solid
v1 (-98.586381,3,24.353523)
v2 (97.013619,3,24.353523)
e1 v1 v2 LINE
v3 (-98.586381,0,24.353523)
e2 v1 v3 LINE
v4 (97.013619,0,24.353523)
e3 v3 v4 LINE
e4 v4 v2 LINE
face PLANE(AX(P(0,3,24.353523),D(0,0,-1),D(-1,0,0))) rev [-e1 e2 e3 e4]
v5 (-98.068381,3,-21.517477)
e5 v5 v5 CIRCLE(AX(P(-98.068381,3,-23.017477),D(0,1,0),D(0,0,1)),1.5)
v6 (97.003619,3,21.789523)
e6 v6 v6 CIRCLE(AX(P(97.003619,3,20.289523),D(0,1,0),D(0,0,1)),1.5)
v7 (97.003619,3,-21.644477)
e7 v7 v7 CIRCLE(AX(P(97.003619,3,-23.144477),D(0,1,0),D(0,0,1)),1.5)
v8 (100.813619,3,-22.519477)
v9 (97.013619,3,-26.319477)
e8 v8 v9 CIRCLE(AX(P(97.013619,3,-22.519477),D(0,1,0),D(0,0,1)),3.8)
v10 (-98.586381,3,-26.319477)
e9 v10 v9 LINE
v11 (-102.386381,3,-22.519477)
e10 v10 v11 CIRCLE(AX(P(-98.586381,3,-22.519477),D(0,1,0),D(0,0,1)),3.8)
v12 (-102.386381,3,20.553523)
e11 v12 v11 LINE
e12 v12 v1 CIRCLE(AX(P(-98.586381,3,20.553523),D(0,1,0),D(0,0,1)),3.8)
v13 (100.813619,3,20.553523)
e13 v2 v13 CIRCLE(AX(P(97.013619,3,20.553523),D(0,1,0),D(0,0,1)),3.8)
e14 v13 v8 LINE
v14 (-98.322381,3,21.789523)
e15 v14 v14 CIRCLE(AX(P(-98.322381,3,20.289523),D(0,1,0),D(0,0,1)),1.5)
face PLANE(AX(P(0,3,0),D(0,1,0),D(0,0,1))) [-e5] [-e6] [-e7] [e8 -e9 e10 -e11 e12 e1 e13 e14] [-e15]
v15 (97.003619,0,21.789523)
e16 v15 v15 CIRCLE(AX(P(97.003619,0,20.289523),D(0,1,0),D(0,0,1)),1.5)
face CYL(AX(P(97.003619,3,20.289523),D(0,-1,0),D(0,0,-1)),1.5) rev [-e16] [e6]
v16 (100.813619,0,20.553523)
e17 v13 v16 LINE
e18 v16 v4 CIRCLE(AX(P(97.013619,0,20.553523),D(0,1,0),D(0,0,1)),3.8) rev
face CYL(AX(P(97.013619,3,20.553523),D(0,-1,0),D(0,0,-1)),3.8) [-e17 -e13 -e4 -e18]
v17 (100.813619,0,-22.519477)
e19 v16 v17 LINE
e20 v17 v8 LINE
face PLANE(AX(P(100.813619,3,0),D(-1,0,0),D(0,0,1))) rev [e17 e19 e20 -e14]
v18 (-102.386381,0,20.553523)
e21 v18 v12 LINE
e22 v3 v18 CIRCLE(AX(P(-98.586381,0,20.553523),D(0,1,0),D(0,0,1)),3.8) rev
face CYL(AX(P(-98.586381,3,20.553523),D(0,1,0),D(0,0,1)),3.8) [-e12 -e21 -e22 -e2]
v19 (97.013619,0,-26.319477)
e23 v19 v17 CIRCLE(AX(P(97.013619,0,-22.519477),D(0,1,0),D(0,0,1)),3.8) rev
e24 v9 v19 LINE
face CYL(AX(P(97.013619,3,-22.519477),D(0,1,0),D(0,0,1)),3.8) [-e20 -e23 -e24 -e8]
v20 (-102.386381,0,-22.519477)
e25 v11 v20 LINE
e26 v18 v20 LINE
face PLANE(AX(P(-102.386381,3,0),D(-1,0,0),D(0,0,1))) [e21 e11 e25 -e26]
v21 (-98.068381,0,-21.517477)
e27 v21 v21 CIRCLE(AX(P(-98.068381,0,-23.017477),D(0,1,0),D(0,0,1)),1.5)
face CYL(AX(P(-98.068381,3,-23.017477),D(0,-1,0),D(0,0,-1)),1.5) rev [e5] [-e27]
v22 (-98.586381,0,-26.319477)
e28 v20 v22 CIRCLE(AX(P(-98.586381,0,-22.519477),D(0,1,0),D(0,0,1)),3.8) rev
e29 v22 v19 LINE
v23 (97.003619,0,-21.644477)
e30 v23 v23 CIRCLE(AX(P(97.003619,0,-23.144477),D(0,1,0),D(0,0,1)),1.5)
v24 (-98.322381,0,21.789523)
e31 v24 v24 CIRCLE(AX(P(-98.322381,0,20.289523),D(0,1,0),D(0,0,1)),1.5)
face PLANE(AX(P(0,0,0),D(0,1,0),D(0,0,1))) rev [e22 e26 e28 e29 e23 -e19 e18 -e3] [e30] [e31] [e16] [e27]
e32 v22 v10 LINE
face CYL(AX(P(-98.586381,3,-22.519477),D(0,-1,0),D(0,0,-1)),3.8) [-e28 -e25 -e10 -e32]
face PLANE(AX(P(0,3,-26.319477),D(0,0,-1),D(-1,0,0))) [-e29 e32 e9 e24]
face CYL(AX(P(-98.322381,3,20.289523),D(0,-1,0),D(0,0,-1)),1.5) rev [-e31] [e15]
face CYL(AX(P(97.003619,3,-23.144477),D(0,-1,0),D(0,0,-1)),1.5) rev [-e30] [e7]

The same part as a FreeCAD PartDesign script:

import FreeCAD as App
import Part
import Sketcher
Q = App.Units.Quantity


def edges_at(feature, points):
    """Names of the edges that pass closest to the given points."""
    edges = feature.Shape.Edges
    near = lambda p: min(range(len(edges)), key=lambda i: edges[i].distToShape(Part.Vertex(*p))[0])
    return sorted({f"Edge{near(p) + 1}" for p in points})


def add_polygon(sketch, points):
    """Adds a closed chain of lines whose ends are joined by coincident constraints."""
    first, n = sketch.GeometryCount, len(points)
    for a, b in zip(points, points[1:] + points[:1]):
        sketch.addGeometry(Part.LineSegment(App.Vector(*a, 0), App.Vector(*b, 0)), False)
    for i in range(n):
        sketch.addConstraint(Sketcher.Constraint("Coincident", first + i, 2, first + (i + 1) % n, 1))

doc = App.newDocument("Part")
body = doc.addObject("PartDesign::Body", "Body")

# Sketch on XZ plane
sketch1 = body.newObject("Sketcher::SketchObject", "Sketch")
sketch1.AttachmentSupport = (doc.getObject("XZ_Plane"), [""])
sketch1.MapMode = "FlatFace"
add_polygon(sketch1, [(-102.386381, -26.319477), (-102.386381, 24.353523), (100.813619, 24.353523), (100.813619, -26.319477)])  # lines 0-3
sketch1.addGeometry(Part.Circle(App.Vector(-98.322381, 20.289523, 0), App.Vector(0, 0, 1), 1.5), False)  # 4
sketch1.addGeometry(Part.Circle(App.Vector(97.003619, 20.289523, 0), App.Vector(0, 0, 1), 1.5), False)  # 5
sketch1.addGeometry(Part.Circle(App.Vector(-98.068381, -23.017477, 0), App.Vector(0, 0, 1), 1.5), False)  # 6
sketch1.addGeometry(Part.Circle(App.Vector(97.003619, -23.144477, 0), App.Vector(0, 0, 1), 1.5), False)  # 7
sketch1.addConstraint([
    Sketcher.Constraint("Vertical", 0),
    Sketcher.Constraint("Horizontal", 1),
    Sketcher.Constraint("Vertical", 2),
    Sketcher.Constraint("Horizontal", 3),
    Sketcher.Constraint("Equal", 4, 5),
    Sketcher.Constraint("Equal", 5, 6),
    Sketcher.Constraint("Equal", 6, 7),
    Sketcher.Constraint("Horizontal", 4, 3, 5, 3),
    Sketcher.Constraint("Vertical", 5, 3, 7, 3),
    Sketcher.Constraint("Diameter", 4, Q("3 mm")),
    Sketcher.Constraint("DistanceX", 1, 1, 1, 2, Q("203.2 mm")),
    Sketcher.Constraint("DistanceY", 0, 1, 0, 2, Q("50.673 mm")),
    Sketcher.Constraint("DistanceX", 0, 2, 5, 3, Q("199.39 mm")),
    Sketcher.Constraint("DistanceX", 4, 3, 5, 3, Q("195.326 mm")),
    Sketcher.Constraint("DistanceX", 4, 3, 6, 3, Q("0.254 mm")),
    Sketcher.Constraint("DistanceY", 6, 3, 4, 3, Q("43.307 mm")),
    Sketcher.Constraint("DistanceY", 7, 3, 5, 3, Q("43.434 mm")),
    Sketcher.Constraint("DistanceY", 4, 3, 0, 2, Q("4.064 mm")),
    Sketcher.Constraint("DistanceX", 4, 3, -1, 1, Q("98.322381 mm")),
    Sketcher.Constraint("DistanceY", -1, 1, 4, 3, Q("20.289523 mm")),
])
pad1 = body.newObject("PartDesign::Pad", "Pad")
pad1.Profile = sketch1
pad1.Length = 3
pad1.Reversed = True
doc.recompute()

fillet = body.newObject("PartDesign::Fillet", "Fillet")
fillet.Base = (pad1, edges_at(pad1, [
    (-102.386, 1.5, 24.354),
    (-102.386, 1.5, -26.319),
    (100.814, 1.5, -26.319),
    (100.814, 1.5, 24.354),
]))
fillet.Radius = 3.8

doc.recompute()
